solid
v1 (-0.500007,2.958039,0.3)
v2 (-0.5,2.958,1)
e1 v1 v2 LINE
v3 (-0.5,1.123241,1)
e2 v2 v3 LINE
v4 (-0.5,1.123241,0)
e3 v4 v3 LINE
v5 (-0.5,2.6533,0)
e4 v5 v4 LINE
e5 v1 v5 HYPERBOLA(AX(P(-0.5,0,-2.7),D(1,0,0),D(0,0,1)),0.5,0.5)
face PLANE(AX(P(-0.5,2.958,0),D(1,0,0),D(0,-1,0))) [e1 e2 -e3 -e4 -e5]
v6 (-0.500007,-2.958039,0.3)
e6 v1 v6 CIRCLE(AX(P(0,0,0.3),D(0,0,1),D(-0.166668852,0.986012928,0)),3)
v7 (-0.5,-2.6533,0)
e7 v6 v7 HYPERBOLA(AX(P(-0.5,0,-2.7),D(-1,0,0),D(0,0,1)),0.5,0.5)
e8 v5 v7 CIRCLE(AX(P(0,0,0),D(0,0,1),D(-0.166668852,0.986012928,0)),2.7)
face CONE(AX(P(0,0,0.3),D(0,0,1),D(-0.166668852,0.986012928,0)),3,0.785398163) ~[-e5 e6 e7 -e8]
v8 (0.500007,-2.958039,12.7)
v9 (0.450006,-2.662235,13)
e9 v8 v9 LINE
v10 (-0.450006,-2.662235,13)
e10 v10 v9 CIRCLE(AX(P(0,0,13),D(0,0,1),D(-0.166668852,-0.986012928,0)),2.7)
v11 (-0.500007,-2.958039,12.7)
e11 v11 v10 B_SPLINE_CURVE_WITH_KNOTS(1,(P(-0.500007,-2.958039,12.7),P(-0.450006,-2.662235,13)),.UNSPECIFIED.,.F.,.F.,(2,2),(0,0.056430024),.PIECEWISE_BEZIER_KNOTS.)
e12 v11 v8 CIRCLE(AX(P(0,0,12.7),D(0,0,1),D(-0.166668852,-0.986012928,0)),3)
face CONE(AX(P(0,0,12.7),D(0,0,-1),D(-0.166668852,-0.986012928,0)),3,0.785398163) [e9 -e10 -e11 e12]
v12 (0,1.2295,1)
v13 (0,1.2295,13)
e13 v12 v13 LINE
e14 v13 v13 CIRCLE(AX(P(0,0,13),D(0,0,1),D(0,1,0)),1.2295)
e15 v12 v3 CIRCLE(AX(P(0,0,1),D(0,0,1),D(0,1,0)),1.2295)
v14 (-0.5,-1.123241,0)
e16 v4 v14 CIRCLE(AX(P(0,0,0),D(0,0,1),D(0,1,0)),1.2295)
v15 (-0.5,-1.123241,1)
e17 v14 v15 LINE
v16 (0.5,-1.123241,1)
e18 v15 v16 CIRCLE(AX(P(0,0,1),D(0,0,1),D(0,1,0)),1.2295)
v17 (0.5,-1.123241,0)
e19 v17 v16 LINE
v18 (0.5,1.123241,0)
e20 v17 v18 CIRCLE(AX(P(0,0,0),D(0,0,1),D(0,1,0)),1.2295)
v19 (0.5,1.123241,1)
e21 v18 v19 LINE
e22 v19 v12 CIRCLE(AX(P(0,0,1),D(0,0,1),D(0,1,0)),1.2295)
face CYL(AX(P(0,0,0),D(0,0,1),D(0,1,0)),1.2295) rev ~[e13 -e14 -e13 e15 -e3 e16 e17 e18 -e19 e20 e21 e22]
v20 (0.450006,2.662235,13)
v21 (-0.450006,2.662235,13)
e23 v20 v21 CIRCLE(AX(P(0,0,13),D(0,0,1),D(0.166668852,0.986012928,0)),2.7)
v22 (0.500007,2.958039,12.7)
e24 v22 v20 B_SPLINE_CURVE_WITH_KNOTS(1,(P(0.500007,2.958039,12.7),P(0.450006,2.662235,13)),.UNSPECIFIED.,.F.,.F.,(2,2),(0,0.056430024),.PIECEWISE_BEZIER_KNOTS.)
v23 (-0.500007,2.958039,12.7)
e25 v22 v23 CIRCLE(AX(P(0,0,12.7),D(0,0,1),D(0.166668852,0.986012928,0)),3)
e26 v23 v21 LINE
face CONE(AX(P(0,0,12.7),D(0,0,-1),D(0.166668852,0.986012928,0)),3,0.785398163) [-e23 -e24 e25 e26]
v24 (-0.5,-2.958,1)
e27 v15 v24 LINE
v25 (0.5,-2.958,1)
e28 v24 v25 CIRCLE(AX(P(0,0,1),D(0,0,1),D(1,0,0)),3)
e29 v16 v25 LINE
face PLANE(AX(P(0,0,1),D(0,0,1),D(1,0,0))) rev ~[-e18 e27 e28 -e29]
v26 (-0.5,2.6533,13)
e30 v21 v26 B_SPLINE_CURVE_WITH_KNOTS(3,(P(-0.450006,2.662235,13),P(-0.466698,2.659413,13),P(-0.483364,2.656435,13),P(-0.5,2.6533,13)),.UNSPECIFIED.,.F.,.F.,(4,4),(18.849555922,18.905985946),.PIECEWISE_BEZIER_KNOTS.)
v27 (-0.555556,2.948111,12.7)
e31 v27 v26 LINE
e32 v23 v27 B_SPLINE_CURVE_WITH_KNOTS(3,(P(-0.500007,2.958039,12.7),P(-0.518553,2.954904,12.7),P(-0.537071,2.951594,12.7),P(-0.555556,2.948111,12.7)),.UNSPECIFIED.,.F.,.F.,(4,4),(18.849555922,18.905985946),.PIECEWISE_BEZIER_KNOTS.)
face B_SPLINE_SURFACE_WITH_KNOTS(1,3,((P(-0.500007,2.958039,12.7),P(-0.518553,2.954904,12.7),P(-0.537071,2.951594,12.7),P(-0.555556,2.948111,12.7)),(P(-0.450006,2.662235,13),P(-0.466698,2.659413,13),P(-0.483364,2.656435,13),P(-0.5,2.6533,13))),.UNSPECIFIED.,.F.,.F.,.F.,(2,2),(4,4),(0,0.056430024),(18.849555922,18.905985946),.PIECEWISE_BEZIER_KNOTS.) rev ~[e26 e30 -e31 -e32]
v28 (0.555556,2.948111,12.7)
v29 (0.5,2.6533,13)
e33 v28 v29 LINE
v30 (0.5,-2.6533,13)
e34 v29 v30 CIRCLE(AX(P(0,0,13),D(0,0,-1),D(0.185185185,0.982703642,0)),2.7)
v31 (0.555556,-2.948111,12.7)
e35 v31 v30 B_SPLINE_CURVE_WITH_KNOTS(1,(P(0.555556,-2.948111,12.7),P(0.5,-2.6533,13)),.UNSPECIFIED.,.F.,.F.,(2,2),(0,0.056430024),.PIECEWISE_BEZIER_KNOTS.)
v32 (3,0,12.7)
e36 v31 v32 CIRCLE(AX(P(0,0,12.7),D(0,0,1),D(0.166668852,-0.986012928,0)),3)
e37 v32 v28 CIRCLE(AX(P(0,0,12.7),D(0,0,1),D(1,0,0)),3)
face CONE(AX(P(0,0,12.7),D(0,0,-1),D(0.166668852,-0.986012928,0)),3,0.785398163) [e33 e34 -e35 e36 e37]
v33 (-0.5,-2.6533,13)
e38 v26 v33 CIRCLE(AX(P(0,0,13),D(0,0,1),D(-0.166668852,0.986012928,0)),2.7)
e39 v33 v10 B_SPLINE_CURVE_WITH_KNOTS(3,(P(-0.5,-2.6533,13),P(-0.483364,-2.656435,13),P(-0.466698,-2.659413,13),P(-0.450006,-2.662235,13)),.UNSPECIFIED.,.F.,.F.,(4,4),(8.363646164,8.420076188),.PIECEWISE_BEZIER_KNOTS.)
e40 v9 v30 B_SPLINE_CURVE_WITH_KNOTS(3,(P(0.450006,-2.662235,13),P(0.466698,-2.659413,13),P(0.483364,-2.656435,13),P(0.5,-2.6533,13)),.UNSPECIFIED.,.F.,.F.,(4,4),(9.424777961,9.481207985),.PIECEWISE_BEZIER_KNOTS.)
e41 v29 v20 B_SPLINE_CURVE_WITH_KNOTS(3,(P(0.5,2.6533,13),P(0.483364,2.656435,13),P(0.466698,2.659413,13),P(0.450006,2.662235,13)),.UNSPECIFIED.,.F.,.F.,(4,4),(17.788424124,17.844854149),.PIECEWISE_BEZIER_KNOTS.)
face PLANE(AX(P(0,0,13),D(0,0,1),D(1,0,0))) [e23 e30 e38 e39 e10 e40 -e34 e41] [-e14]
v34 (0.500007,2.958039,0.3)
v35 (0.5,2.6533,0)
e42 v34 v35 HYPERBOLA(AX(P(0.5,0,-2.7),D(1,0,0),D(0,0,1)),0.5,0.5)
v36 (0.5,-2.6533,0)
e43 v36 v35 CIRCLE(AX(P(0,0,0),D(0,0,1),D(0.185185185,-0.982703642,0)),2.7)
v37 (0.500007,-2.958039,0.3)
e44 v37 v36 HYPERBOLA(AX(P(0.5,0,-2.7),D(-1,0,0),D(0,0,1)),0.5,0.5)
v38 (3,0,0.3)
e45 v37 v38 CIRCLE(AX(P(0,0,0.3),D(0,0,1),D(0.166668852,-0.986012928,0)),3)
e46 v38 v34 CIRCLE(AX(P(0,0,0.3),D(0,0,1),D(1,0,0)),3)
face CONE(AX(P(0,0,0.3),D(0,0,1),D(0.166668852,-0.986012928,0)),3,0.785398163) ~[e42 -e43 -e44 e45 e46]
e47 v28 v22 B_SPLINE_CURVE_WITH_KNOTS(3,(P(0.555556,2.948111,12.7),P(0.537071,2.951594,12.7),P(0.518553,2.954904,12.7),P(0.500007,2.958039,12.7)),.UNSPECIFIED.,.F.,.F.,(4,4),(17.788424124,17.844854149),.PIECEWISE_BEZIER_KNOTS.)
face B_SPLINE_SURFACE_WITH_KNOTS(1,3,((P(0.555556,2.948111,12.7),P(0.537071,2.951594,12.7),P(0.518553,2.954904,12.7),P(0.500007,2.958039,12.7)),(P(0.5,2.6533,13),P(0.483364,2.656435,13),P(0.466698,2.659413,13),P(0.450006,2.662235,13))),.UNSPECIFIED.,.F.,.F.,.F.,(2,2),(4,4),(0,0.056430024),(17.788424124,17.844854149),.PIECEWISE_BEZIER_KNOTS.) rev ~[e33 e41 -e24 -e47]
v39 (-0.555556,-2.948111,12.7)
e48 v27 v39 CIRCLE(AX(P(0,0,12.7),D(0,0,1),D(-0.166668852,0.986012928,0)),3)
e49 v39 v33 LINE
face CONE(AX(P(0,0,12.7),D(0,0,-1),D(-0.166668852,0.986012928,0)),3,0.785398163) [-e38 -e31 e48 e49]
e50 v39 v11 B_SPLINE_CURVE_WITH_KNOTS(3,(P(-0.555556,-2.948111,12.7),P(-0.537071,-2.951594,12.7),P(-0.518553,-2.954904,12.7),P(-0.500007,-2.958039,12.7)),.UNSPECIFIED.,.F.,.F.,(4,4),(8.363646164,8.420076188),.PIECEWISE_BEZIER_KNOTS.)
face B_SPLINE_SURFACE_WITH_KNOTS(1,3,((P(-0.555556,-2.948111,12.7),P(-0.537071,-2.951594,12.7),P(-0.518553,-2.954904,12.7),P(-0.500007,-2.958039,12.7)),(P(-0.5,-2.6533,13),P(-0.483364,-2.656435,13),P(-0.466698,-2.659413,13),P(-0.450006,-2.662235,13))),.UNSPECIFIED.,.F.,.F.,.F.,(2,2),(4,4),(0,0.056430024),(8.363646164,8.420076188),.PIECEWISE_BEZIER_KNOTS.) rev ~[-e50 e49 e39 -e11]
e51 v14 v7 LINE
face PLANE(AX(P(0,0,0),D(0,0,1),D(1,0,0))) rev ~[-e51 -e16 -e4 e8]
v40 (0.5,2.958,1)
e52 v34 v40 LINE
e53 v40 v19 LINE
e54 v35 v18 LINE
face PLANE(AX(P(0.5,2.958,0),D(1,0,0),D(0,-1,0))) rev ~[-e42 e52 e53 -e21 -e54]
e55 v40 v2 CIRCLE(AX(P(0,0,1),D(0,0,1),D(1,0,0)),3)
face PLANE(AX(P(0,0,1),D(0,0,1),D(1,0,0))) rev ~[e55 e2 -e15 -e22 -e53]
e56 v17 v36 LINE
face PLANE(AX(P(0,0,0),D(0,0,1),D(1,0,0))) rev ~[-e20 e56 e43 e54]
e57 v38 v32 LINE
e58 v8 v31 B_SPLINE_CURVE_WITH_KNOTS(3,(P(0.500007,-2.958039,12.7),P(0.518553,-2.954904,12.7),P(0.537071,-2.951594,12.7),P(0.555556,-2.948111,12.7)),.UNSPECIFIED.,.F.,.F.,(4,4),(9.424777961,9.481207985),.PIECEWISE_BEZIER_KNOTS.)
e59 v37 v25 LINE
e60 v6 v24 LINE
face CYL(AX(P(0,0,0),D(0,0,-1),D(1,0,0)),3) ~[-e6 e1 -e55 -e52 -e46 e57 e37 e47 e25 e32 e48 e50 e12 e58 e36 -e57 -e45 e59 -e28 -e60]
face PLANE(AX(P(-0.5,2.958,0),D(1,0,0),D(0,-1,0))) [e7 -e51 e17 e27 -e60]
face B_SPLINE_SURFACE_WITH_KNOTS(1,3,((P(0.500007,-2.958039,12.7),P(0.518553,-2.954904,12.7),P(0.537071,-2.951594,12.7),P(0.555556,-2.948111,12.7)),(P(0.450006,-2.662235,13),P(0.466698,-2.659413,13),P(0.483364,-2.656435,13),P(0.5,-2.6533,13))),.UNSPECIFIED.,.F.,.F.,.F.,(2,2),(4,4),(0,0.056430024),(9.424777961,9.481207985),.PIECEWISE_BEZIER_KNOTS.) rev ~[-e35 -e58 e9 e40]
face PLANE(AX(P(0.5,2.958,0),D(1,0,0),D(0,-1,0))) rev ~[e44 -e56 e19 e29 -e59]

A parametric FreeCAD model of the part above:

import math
import FreeCAD as App
import Part
import Sketcher
from FreeCAD import Vector
Q = App.Units.Quantity


def edges_at(feature, points):
    """Names of the edges that pass closest to the given points."""
    edges = feature.Shape.Edges
    near = lambda p: min(range(len(edges)), key=lambda i: edges[i].distToShape(Part.Vertex(*p))[0])
    return sorted({f"Edge{near(p) + 1}" for p in points})

doc = App.newDocument("Part")
params = doc.addObject("Spreadsheet::Sheet", "Params")
for row, (alias, value) in enumerate([
    ("sketch1_diameter", "6 mm"),
    ("pad1_length", "13 mm"),
    ("sketch2_radius", "3 mm"),
    ("pocket1_length", "1 mm"),
    ("chamfer_size", "0.3 mm"),
    ("hole_diameter", "2.459 mm"),
], start=1):
    params.set(f"A{row}", alias)
    params.set(f"B{row}", "=" + value)
    params.setAlias(f"B{row}", alias)

body = doc.addObject("PartDesign::Body", "Body")

# Sketch on XY plane
sketch1 = body.newObject("Sketcher::SketchObject", "Sketch")
sketch1.AttachmentSupport = (doc.getObject("XY_Plane"), [""])
sketch1.MapMode = "FlatFace"
sketch1.addGeometry(Part.Circle(Vector(0, 0, 0), Vector(0, 0, 1), 3), False)
sketch1.addConstraint(Sketcher.Constraint("Coincident", 0, 3, -1, 1))
sketch1.addConstraint(Sketcher.Constraint("Diameter", 0, Q("6 mm")))
sketch1.setExpression("Constraints[1]", "Params.sketch1_diameter")
pad1 = body.newObject("PartDesign::Pad", "Pad")
pad1.Profile = sketch1
pad1.setExpression("Length", "Params.pad1_length")

# Sketch on XY plane
sketch2 = body.newObject("Sketcher::SketchObject", "Sketch001")
sketch2.AttachmentSupport = (doc.getObject("XY_Plane"), [""])
sketch2.MapMode = "FlatFace"
sketch2.addGeometry(Part.LineSegment(Vector(0.5, -3, 0), Vector(0.5, 3, 0)), False)
sketch2.addGeometry(Part.ArcOfCircle(Part.Circle(Vector(0, 0, 0), Vector(0, 0, 1), 3), math.radians(80.41), math.radians(99.59)), False)
sketch2.addGeometry(Part.LineSegment(Vector(-0.5, 3, 0), Vector(-0.5, -3, 0)), False)
sketch2.addGeometry(Part.ArcOfCircle(Part.Circle(Vector(0, 0, 0), Vector(0, 0, 1), 3), math.radians(-99.59), math.radians(-80.41)), False)
sketch2.addConstraint(Sketcher.Constraint("Coincident", 0, 2, 1, 1))
sketch2.addConstraint(Sketcher.Constraint("Coincident", 1, 2, 2, 1))
sketch2.addConstraint(Sketcher.Constraint("Coincident", 2, 2, 3, 1))
sketch2.addConstraint(Sketcher.Constraint("Coincident", 3, 2, 0, 1))
sketch2.addConstraint(Sketcher.Constraint("Vertical", 0))
sketch2.addConstraint(Sketcher.Constraint("Vertical", 2))
sketch2.addConstraint(Sketcher.Constraint("Coincident", 1, 3, -1, 1))
sketch2.addConstraint(Sketcher.Constraint("Coincident", 3, 3, -1, 1))
sketch2.addConstraint(Sketcher.Constraint("Equal", 1, 3))
sketch2.addConstraint(Sketcher.Constraint("Horizontal", 0, 2, 1, 2))
sketch2.addConstraint(Sketcher.Constraint("Radius", 1, Q("3 mm")))
sketch2.addConstraint(Sketcher.Constraint("DistanceX", 1, 2, 0, 2, Q("1 mm")))
sketch2.setExpression("Constraints[10]", "Params.sketch2_radius")
pocket1 = body.newObject("PartDesign::Pocket", "Pocket")
pocket1.Profile = sketch2
pocket1.setExpression("Length", "Params.pocket1_length")
pocket1.Reversed = True
doc.recompute()

chamfer = body.newObject("PartDesign::Chamfer", "Chamfer")
chamfer.Base = (pocket1, edges_at(pocket1, [
    (-3, 0, 13),
    (2.291, 1.937, 0),
    (2.291, -1.937, 0),
    (-3, 0, 0),
]))
chamfer.setExpression("Size", "Params.chamfer_size")

# Sketch on XY plane
sketch3 = body.newObject("Sketcher::SketchObject", "Sketch002")
sketch3.AttachmentSupport = (doc.getObject("XY_Plane"), [""])
sketch3.MapMode = "FlatFace"
sketch3.addGeometry(Part.Circle(Vector(0, 0, 0), Vector(0, 0, 1), 1.2), False)
sketch3.addConstraint(Sketcher.Constraint("Coincident", 0, 3, -1, 1))
sketch3.addConstraint(Sketcher.Constraint("Diameter", 0, Q("2.459 mm")))
doc.recompute()
hole = body.newObject("PartDesign::Hole", "Hole")
hole.Profile = sketch3
hole.ThreadType = "None"
hole.setExpression("Diameter", "Params.hole_diameter")
hole.DepthType = "ThroughAll"
hole.Reversed = True

doc.recompute()
